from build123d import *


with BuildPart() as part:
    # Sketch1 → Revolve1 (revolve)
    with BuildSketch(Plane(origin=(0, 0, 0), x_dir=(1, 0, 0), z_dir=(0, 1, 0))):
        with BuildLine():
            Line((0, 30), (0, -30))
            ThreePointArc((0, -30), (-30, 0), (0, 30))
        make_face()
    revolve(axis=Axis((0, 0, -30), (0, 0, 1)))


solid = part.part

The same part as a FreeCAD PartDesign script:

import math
import FreeCAD as App
import Part
import Sketcher
from FreeCAD import Vector

doc = App.newDocument("Part")
params = doc.addObject("Spreadsheet::Sheet", "Params")
for row, (alias, value) in enumerate([
    ("sketch1_radius", "30 mm"),
    ("revolution_angle", "360 deg"),
], start=1):
    params.set(f"A{row}", alias)
    params.set(f"B{row}", "=" + value)
    params.setAlias(f"B{row}", alias)

body = doc.addObject("PartDesign::Body", "Body")

sketch1 = body.newObject("Sketcher::SketchObject", "Sketch")
sketch1.AttachmentSupport = (doc.getObject("XZ_Plane"), [""])
sketch1.MapMode = "FlatFace"
sketch1.addGeometry(Part.LineSegment(Vector(0, 30, 0), Vector(0, -30, 0)), False)
sketch1.addGeometry(Part.ArcOfCircle(Part.Circle(Vector(0, 0, 0), Vector(0, 0, 1), 30), math.radians(90), math.radians(270)), False)
sketch1.addConstraint(Sketcher.Constraint("Coincident", 0, 1, 1, 1))
sketch1.addConstraint(Sketcher.Constraint("Coincident", 1, 2, 0, 2))
sketch1.addConstraint(Sketcher.Constraint("Vertical", 0))
sketch1.addConstraint(Sketcher.Constraint("Coincident", 1, 3, -1, 1))
sketch1.addConstraint(Sketcher.Constraint("PointOnObject", 0, 1, -2))
sketch1.addConstraint(Sketcher.Constraint("Radius", 1, 30.0))
sketch1.setExpression("Constraints[5]", "Params.sketch1_radius")
revolution = body.newObject("PartDesign::Revolution", "Revolution")
revolution.Profile = sketch1
revolution.ReferenceAxis = (sketch1, ["V_Axis"])
revolution.setExpression("Angle", "Params.revolution_angle")

doc.recompute()
